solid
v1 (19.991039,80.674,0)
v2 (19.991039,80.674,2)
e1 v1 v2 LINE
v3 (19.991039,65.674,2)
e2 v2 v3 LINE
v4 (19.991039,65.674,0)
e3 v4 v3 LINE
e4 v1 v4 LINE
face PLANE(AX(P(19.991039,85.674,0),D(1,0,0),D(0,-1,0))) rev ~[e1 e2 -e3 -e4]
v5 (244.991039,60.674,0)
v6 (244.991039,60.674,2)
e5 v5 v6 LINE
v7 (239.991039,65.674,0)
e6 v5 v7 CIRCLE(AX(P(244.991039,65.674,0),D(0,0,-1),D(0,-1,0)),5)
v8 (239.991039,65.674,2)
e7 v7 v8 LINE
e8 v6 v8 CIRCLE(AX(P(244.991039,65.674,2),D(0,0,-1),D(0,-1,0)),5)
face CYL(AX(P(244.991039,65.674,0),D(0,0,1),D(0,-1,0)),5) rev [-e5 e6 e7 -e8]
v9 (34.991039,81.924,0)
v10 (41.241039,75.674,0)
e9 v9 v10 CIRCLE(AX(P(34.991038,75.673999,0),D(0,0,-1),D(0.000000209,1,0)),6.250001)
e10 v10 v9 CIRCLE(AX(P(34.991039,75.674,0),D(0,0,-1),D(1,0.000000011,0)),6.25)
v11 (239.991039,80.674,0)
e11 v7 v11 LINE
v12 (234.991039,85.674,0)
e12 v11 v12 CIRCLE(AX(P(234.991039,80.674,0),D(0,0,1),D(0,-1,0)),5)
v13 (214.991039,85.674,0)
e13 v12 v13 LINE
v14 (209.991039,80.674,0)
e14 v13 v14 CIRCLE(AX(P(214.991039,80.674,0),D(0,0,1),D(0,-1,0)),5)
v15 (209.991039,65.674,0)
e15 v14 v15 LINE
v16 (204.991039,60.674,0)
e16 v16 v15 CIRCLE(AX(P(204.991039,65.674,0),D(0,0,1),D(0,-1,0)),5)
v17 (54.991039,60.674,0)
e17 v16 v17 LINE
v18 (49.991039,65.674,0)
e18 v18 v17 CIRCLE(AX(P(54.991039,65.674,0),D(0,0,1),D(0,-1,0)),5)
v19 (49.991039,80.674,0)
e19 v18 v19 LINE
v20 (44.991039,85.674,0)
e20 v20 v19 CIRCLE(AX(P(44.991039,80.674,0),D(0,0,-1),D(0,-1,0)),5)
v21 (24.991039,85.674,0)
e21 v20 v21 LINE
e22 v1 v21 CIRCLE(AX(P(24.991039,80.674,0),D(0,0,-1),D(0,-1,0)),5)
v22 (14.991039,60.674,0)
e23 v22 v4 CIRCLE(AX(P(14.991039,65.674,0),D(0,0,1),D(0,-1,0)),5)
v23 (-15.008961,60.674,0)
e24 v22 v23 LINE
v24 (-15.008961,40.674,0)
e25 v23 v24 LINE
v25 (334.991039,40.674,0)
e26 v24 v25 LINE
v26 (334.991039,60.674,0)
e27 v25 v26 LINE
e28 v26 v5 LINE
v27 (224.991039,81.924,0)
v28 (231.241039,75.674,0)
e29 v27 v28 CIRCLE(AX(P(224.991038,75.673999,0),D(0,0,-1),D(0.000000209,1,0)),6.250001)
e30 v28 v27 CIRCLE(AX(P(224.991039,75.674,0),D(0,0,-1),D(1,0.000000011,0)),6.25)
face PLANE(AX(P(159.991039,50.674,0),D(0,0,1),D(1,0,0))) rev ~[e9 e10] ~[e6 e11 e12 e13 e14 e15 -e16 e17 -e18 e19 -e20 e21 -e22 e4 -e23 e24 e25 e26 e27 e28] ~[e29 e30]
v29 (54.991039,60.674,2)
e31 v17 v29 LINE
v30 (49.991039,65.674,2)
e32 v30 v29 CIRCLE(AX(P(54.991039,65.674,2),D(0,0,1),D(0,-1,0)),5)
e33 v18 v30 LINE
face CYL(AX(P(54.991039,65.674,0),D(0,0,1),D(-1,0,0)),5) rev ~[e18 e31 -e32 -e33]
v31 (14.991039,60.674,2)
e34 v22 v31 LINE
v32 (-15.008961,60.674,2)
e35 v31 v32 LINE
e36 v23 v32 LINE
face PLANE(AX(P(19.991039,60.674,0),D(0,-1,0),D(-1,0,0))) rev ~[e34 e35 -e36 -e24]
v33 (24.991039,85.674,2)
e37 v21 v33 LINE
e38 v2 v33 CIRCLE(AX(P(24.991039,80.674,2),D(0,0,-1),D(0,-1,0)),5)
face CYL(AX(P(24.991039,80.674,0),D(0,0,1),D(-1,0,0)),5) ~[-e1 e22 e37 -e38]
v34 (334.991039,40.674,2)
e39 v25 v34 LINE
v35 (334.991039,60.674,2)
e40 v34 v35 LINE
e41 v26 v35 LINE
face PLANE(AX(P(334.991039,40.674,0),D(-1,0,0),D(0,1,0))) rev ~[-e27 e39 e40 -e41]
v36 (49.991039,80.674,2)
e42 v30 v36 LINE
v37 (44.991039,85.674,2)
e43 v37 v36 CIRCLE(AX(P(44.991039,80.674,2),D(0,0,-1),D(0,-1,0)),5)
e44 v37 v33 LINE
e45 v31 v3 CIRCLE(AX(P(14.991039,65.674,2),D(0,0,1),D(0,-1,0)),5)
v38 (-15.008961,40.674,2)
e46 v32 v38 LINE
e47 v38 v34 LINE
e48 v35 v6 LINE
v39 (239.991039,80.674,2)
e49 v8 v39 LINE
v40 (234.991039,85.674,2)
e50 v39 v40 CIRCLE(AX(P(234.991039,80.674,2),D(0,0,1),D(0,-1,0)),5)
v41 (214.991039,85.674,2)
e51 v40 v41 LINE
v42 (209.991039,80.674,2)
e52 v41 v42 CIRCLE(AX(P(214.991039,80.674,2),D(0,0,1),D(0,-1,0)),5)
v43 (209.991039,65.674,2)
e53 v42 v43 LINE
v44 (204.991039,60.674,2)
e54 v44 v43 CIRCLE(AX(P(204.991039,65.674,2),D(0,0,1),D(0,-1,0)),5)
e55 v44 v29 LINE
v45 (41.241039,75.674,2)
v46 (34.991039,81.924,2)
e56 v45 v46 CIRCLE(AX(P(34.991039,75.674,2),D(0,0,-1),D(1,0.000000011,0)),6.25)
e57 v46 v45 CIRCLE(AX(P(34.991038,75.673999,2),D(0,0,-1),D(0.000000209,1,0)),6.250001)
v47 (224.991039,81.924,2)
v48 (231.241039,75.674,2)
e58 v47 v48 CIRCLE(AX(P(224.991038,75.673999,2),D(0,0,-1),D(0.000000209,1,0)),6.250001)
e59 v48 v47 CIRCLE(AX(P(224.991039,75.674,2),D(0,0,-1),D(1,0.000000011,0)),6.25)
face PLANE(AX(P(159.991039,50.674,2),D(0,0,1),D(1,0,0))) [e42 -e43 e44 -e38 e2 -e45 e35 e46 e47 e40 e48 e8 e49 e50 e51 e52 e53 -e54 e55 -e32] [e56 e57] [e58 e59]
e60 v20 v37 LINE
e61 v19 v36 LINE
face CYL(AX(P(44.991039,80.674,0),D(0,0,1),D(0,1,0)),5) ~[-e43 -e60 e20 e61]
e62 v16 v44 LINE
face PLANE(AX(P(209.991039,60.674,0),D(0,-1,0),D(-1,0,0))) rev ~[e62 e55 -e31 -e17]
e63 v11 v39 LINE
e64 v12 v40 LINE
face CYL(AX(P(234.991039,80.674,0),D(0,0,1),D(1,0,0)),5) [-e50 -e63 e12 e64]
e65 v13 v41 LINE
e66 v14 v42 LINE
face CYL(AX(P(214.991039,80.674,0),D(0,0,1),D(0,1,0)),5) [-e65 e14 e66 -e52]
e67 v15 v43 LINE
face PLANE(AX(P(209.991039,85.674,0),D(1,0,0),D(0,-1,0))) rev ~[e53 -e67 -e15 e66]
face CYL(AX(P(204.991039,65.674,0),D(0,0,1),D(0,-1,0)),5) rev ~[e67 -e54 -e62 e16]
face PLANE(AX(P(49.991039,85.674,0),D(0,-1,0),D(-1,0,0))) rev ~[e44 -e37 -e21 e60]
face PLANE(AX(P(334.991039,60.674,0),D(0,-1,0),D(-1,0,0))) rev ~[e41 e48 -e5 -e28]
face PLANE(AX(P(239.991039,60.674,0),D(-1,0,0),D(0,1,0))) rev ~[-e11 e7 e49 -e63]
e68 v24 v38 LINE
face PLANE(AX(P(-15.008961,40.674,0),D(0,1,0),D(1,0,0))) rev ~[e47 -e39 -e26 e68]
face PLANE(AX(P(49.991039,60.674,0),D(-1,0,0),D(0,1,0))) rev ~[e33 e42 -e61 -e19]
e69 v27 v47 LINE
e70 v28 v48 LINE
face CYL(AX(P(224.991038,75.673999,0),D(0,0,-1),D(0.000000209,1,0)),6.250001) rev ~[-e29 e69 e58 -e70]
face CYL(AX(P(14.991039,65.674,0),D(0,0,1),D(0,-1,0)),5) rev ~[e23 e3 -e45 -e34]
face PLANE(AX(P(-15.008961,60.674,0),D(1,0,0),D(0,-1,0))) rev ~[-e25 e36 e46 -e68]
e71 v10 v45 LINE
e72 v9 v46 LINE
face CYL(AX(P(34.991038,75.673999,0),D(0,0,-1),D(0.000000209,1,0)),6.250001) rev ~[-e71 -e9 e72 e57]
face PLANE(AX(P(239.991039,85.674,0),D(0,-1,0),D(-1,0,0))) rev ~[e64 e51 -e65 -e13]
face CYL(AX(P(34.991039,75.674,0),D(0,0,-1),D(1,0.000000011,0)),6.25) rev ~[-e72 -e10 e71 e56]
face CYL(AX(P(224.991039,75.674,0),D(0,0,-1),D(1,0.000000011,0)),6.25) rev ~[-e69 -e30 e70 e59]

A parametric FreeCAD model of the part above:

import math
import FreeCAD as App
import Part
import Sketcher

V = App.Vector


def edges_at(feature, points):
    """Names of the edges that pass closest to the given points."""
    edges = feature.Shape.Edges
    near = lambda p: min(range(len(edges)), key=lambda i: edges[i].distToShape(Part.Vertex(*p))[0])
    return sorted({f"Edge{near(p) + 1}" for p in points})

doc = App.newDocument("Part")
body = doc.addObject("PartDesign::Body", "Body")

# Sketch on XY plane
sketch1 = body.newObject("Sketcher::SketchObject", "Sketch")
sketch1.AttachmentSupport = (doc.getObject("XY_Plane"), [""])
sketch1.MapMode = "FlatFace"
sketch1.addGeometry(Part.LineSegment(V(-15, 61, 0), V(-15, 41, 0)), False)
sketch1.addGeometry(Part.LineSegment(V(-15, 41, 0), V(335, 41, 0)), False)
sketch1.addGeometry(Part.LineSegment(V(335, 41, 0), V(335, 61, 0)), False)
sketch1.addGeometry(Part.LineSegment(V(335, 61, 0), V(240, 61, 0)), False)
sketch1.addGeometry(Part.LineSegment(V(240, 61, 0), V(240, 86, 0)), False)
sketch1.addGeometry(Part.LineSegment(V(240, 86, 0), V(210, 86, 0)), False)
sketch1.addGeometry(Part.LineSegment(V(210, 86, 0), V(210, 61, 0)), False)
sketch1.addGeometry(Part.LineSegment(V(210, 61, 0), V(50, 61, 0)), False)
sketch1.addGeometry(Part.LineSegment(V(50, 61, 0), V(50, 86, 0)), False)
sketch1.addGeometry(Part.LineSegment(V(50, 86, 0), V(20, 86, 0)), False)
sketch1.addGeometry(Part.LineSegment(V(20, 86, 0), V(20, 61, 0)), False)
sketch1.addGeometry(Part.LineSegment(V(20, 61, 0), V(-15, 61, 0)), False)
sketch1.addGeometry(Part.ArcOfCircle(Part.Circle(V(35, 76, 0), V(0, 0, 1), 6), math.radians(0), math.radians(90)), False)
sketch1.addGeometry(Part.ArcOfCircle(Part.Circle(V(35, 76, 0), V(0, 0, 1), 6), math.radians(90), math.radians(360)), False)
sketch1.addGeometry(Part.ArcOfCircle(Part.Circle(V(225, 76, 0), V(0, 0, 1), 6), math.radians(0), math.radians(90)), False)
sketch1.addGeometry(Part.ArcOfCircle(Part.Circle(V(225, 76, 0), V(0, 0, 1), 6), math.radians(90), math.radians(360)), False)
sketch1.addConstraint(Sketcher.Constraint("Coincident", 0, 2, 1, 1))
sketch1.addConstraint(Sketcher.Constraint("Coincident", 1, 2, 2, 1))
sketch1.addConstraint(Sketcher.Constraint("Coincident", 2, 2, 3, 1))
sketch1.addConstraint(Sketcher.Constraint("Coincident", 3, 2, 4, 1))
sketch1.addConstraint(Sketcher.Constraint("Coincident", 4, 2, 5, 1))
sketch1.addConstraint(Sketcher.Constraint("Coincident", 5, 2, 6, 1))
sketch1.addConstraint(Sketcher.Constraint("Coincident", 6, 2, 7, 1))
sketch1.addConstraint(Sketcher.Constraint("Coincident", 7, 2, 8, 1))
sketch1.addConstraint(Sketcher.Constraint("Coincident", 8, 2, 9, 1))
sketch1.addConstraint(Sketcher.Constraint("Coincident", 9, 2, 10, 1))
sketch1.addConstraint(Sketcher.Constraint("Coincident", 10, 2, 11, 1))
sketch1.addConstraint(Sketcher.Constraint("Coincident", 11, 2, 0, 1))
sketch1.addConstraint(Sketcher.Constraint("Tangent", 12, 1, 13, 2))
sketch1.addConstraint(Sketcher.Constraint("Coincident", 13, 1, 12, 2))
sketch1.addConstraint(Sketcher.Constraint("Tangent", 14, 1, 15, 2))
sketch1.addConstraint(Sketcher.Constraint("Coincident", 15, 1, 14, 2))
sketch1.addConstraint(Sketcher.Constraint("Vertical", 0))
sketch1.addConstraint(Sketcher.Constraint("Horizontal", 1))
sketch1.addConstraint(Sketcher.Constraint("Vertical", 2))
sketch1.addConstraint(Sketcher.Constraint("Horizontal", 3))
sketch1.addConstraint(Sketcher.Constraint("Vertical", 4))
sketch1.addConstraint(Sketcher.Constraint("Horizontal", 5))
sketch1.addConstraint(Sketcher.Constraint("Vertical", 6))
sketch1.addConstraint(Sketcher.Constraint("Horizontal", 7))
sketch1.addConstraint(Sketcher.Constraint("Vertical", 8))
sketch1.addConstraint(Sketcher.Constraint("Horizontal", 9))
sketch1.addConstraint(Sketcher.Constraint("Vertical", 10))
sketch1.addConstraint(Sketcher.Constraint("Horizontal", 11))
sketch1.addConstraint(Sketcher.Constraint("Equal", 13, 14))
sketch1.addConstraint(Sketcher.Constraint("Horizontal", 13, 3, 14, 3))
sketch1.addConstraint(Sketcher.Constraint("Horizontal", 3, 2, 6, 2))
sketch1.addConstraint(Sketcher.Constraint("Horizontal", 5, 2, 8, 2))
sketch1.addConstraint(Sketcher.Constraint("Horizontal", 7, 2, 10, 2))
sketch1.addConstraint(Sketcher.Constraint("Horizontal", 15, 3, 12, 1))
sketch1.addConstraint(Sketcher.Constraint("Horizontal", 12, 1, 14, 1))
sketch1.addConstraint(Sketcher.Constraint("Vertical", 12, 3, 13, 1))
sketch1.addConstraint(Sketcher.Constraint("Vertical", 14, 3, 15, 1))
sketch1.addConstraint(Sketcher.Constraint("Equal", 5, 9))
sketch1.addConstraint(Sketcher.Constraint("DistanceX", 1, 1, 1, 2, 350.0))
sketch1.addConstraint(Sketcher.Constraint("DistanceX", 3, 2, 3, 1, 95.0))
sketch1.addConstraint(Sketcher.Constraint("DistanceX", 5, 2, 5, 1, 30.0))
sketch1.addConstraint(Sketcher.Constraint("DistanceX", 7, 2, 7, 1, 160.0))
sketch1.addConstraint(Sketcher.Constraint("DistanceY", 0, 2, 0, 1, 20.0))
sketch1.addConstraint(Sketcher.Constraint("DistanceY", 4, 1, 4, 2, 25.0))
sketch1.addConstraint(Sketcher.Constraint("Radius", 12, 6.250001))
sketch1.addConstraint(Sketcher.Constraint("DistanceX", 13, 3, 14, 3, 189.999999))
sketch1.addConstraint(Sketcher.Constraint("DistanceX", 0, 2, 12, 3, 49.999999))
sketch1.addConstraint(Sketcher.Constraint("DistanceY", 0, 2, 12, 3, 34.999999))
sketch1.addConstraint(Sketcher.Constraint("DistanceY", -1, 1, 12, 3, 75.673999))
sketch1.addConstraint(Sketcher.Constraint("DistanceX", -1, 1, 13, 3, 34.991039))
pad1 = body.newObject("PartDesign::Pad", "Pad")
pad1.Profile = sketch1
pad1.Length = 2
doc.recompute()

fillet = body.newObject("PartDesign::Fillet", "Fillet")
fillet.Base = (pad1, edges_at(pad1, [
    (19.991, 60.674, 1),
    (49.991, 60.674, 1),
    (209.991, 60.674, 1),
    (239.991, 60.674, 1),
    (239.991, 85.674, 1),
    (209.991, 85.674, 1),
    (19.991, 85.674, 1),
    (49.991, 85.674, 1),
]))
fillet.Radius = 5

doc.recompute()
